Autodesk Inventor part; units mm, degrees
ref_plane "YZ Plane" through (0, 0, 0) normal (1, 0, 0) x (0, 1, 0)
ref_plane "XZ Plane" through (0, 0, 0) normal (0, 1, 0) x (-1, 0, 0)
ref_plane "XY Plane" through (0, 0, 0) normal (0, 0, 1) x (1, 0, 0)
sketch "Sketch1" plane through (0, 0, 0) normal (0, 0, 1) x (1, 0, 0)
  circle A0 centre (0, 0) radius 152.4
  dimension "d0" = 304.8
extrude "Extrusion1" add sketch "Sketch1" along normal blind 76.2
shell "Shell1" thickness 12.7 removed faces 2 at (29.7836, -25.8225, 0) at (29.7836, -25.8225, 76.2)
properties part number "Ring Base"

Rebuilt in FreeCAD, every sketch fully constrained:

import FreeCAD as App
import Part
import Sketcher
from FreeCAD import Vector
Q = App.Units.Quantity


def faces_at(feature, points):
    """Names of the faces that lie closest to the given points."""
    faces = feature.Shape.Faces
    near = lambda p: min(range(len(faces)), key=lambda i: faces[i].distToShape(Part.Vertex(*p))[0])
    return sorted({f"Face{near(p) + 1}" for p in points})

doc = App.newDocument("Part")
body = doc.addObject("PartDesign::Body", "Body")

sketch1 = body.newObject("Sketcher::SketchObject", "Sketch")
sketch1.AttachmentSupport = (doc.getObject("XY_Plane"), [""])
sketch1.MapMode = "FlatFace"
sketch1.addGeometry(Part.Circle(Vector(0, 0, 0), Vector(0, 0, 1), 152), False)
sketch1.addConstraint([
    Sketcher.Constraint("Coincident", 0, 3, -1, 1),
    Sketcher.Constraint("Diameter", 0, Q("12 in")),
])
pad1 = body.newObject("PartDesign::Pad", "Pad")
pad1.Profile = sketch1
pad1.Length = Q("3 in")
doc.recompute()

thickness = body.newObject("PartDesign::Thickness", "Thickness")
thickness.Base = (pad1, faces_at(pad1, [(29.784, -25.823, 0), (29.784, -25.823, 76.2)]))
thickness.Value = Q("0.5 in")
thickness.Reversed = True
thickness.Join = "Intersection"

doc.recompute()
